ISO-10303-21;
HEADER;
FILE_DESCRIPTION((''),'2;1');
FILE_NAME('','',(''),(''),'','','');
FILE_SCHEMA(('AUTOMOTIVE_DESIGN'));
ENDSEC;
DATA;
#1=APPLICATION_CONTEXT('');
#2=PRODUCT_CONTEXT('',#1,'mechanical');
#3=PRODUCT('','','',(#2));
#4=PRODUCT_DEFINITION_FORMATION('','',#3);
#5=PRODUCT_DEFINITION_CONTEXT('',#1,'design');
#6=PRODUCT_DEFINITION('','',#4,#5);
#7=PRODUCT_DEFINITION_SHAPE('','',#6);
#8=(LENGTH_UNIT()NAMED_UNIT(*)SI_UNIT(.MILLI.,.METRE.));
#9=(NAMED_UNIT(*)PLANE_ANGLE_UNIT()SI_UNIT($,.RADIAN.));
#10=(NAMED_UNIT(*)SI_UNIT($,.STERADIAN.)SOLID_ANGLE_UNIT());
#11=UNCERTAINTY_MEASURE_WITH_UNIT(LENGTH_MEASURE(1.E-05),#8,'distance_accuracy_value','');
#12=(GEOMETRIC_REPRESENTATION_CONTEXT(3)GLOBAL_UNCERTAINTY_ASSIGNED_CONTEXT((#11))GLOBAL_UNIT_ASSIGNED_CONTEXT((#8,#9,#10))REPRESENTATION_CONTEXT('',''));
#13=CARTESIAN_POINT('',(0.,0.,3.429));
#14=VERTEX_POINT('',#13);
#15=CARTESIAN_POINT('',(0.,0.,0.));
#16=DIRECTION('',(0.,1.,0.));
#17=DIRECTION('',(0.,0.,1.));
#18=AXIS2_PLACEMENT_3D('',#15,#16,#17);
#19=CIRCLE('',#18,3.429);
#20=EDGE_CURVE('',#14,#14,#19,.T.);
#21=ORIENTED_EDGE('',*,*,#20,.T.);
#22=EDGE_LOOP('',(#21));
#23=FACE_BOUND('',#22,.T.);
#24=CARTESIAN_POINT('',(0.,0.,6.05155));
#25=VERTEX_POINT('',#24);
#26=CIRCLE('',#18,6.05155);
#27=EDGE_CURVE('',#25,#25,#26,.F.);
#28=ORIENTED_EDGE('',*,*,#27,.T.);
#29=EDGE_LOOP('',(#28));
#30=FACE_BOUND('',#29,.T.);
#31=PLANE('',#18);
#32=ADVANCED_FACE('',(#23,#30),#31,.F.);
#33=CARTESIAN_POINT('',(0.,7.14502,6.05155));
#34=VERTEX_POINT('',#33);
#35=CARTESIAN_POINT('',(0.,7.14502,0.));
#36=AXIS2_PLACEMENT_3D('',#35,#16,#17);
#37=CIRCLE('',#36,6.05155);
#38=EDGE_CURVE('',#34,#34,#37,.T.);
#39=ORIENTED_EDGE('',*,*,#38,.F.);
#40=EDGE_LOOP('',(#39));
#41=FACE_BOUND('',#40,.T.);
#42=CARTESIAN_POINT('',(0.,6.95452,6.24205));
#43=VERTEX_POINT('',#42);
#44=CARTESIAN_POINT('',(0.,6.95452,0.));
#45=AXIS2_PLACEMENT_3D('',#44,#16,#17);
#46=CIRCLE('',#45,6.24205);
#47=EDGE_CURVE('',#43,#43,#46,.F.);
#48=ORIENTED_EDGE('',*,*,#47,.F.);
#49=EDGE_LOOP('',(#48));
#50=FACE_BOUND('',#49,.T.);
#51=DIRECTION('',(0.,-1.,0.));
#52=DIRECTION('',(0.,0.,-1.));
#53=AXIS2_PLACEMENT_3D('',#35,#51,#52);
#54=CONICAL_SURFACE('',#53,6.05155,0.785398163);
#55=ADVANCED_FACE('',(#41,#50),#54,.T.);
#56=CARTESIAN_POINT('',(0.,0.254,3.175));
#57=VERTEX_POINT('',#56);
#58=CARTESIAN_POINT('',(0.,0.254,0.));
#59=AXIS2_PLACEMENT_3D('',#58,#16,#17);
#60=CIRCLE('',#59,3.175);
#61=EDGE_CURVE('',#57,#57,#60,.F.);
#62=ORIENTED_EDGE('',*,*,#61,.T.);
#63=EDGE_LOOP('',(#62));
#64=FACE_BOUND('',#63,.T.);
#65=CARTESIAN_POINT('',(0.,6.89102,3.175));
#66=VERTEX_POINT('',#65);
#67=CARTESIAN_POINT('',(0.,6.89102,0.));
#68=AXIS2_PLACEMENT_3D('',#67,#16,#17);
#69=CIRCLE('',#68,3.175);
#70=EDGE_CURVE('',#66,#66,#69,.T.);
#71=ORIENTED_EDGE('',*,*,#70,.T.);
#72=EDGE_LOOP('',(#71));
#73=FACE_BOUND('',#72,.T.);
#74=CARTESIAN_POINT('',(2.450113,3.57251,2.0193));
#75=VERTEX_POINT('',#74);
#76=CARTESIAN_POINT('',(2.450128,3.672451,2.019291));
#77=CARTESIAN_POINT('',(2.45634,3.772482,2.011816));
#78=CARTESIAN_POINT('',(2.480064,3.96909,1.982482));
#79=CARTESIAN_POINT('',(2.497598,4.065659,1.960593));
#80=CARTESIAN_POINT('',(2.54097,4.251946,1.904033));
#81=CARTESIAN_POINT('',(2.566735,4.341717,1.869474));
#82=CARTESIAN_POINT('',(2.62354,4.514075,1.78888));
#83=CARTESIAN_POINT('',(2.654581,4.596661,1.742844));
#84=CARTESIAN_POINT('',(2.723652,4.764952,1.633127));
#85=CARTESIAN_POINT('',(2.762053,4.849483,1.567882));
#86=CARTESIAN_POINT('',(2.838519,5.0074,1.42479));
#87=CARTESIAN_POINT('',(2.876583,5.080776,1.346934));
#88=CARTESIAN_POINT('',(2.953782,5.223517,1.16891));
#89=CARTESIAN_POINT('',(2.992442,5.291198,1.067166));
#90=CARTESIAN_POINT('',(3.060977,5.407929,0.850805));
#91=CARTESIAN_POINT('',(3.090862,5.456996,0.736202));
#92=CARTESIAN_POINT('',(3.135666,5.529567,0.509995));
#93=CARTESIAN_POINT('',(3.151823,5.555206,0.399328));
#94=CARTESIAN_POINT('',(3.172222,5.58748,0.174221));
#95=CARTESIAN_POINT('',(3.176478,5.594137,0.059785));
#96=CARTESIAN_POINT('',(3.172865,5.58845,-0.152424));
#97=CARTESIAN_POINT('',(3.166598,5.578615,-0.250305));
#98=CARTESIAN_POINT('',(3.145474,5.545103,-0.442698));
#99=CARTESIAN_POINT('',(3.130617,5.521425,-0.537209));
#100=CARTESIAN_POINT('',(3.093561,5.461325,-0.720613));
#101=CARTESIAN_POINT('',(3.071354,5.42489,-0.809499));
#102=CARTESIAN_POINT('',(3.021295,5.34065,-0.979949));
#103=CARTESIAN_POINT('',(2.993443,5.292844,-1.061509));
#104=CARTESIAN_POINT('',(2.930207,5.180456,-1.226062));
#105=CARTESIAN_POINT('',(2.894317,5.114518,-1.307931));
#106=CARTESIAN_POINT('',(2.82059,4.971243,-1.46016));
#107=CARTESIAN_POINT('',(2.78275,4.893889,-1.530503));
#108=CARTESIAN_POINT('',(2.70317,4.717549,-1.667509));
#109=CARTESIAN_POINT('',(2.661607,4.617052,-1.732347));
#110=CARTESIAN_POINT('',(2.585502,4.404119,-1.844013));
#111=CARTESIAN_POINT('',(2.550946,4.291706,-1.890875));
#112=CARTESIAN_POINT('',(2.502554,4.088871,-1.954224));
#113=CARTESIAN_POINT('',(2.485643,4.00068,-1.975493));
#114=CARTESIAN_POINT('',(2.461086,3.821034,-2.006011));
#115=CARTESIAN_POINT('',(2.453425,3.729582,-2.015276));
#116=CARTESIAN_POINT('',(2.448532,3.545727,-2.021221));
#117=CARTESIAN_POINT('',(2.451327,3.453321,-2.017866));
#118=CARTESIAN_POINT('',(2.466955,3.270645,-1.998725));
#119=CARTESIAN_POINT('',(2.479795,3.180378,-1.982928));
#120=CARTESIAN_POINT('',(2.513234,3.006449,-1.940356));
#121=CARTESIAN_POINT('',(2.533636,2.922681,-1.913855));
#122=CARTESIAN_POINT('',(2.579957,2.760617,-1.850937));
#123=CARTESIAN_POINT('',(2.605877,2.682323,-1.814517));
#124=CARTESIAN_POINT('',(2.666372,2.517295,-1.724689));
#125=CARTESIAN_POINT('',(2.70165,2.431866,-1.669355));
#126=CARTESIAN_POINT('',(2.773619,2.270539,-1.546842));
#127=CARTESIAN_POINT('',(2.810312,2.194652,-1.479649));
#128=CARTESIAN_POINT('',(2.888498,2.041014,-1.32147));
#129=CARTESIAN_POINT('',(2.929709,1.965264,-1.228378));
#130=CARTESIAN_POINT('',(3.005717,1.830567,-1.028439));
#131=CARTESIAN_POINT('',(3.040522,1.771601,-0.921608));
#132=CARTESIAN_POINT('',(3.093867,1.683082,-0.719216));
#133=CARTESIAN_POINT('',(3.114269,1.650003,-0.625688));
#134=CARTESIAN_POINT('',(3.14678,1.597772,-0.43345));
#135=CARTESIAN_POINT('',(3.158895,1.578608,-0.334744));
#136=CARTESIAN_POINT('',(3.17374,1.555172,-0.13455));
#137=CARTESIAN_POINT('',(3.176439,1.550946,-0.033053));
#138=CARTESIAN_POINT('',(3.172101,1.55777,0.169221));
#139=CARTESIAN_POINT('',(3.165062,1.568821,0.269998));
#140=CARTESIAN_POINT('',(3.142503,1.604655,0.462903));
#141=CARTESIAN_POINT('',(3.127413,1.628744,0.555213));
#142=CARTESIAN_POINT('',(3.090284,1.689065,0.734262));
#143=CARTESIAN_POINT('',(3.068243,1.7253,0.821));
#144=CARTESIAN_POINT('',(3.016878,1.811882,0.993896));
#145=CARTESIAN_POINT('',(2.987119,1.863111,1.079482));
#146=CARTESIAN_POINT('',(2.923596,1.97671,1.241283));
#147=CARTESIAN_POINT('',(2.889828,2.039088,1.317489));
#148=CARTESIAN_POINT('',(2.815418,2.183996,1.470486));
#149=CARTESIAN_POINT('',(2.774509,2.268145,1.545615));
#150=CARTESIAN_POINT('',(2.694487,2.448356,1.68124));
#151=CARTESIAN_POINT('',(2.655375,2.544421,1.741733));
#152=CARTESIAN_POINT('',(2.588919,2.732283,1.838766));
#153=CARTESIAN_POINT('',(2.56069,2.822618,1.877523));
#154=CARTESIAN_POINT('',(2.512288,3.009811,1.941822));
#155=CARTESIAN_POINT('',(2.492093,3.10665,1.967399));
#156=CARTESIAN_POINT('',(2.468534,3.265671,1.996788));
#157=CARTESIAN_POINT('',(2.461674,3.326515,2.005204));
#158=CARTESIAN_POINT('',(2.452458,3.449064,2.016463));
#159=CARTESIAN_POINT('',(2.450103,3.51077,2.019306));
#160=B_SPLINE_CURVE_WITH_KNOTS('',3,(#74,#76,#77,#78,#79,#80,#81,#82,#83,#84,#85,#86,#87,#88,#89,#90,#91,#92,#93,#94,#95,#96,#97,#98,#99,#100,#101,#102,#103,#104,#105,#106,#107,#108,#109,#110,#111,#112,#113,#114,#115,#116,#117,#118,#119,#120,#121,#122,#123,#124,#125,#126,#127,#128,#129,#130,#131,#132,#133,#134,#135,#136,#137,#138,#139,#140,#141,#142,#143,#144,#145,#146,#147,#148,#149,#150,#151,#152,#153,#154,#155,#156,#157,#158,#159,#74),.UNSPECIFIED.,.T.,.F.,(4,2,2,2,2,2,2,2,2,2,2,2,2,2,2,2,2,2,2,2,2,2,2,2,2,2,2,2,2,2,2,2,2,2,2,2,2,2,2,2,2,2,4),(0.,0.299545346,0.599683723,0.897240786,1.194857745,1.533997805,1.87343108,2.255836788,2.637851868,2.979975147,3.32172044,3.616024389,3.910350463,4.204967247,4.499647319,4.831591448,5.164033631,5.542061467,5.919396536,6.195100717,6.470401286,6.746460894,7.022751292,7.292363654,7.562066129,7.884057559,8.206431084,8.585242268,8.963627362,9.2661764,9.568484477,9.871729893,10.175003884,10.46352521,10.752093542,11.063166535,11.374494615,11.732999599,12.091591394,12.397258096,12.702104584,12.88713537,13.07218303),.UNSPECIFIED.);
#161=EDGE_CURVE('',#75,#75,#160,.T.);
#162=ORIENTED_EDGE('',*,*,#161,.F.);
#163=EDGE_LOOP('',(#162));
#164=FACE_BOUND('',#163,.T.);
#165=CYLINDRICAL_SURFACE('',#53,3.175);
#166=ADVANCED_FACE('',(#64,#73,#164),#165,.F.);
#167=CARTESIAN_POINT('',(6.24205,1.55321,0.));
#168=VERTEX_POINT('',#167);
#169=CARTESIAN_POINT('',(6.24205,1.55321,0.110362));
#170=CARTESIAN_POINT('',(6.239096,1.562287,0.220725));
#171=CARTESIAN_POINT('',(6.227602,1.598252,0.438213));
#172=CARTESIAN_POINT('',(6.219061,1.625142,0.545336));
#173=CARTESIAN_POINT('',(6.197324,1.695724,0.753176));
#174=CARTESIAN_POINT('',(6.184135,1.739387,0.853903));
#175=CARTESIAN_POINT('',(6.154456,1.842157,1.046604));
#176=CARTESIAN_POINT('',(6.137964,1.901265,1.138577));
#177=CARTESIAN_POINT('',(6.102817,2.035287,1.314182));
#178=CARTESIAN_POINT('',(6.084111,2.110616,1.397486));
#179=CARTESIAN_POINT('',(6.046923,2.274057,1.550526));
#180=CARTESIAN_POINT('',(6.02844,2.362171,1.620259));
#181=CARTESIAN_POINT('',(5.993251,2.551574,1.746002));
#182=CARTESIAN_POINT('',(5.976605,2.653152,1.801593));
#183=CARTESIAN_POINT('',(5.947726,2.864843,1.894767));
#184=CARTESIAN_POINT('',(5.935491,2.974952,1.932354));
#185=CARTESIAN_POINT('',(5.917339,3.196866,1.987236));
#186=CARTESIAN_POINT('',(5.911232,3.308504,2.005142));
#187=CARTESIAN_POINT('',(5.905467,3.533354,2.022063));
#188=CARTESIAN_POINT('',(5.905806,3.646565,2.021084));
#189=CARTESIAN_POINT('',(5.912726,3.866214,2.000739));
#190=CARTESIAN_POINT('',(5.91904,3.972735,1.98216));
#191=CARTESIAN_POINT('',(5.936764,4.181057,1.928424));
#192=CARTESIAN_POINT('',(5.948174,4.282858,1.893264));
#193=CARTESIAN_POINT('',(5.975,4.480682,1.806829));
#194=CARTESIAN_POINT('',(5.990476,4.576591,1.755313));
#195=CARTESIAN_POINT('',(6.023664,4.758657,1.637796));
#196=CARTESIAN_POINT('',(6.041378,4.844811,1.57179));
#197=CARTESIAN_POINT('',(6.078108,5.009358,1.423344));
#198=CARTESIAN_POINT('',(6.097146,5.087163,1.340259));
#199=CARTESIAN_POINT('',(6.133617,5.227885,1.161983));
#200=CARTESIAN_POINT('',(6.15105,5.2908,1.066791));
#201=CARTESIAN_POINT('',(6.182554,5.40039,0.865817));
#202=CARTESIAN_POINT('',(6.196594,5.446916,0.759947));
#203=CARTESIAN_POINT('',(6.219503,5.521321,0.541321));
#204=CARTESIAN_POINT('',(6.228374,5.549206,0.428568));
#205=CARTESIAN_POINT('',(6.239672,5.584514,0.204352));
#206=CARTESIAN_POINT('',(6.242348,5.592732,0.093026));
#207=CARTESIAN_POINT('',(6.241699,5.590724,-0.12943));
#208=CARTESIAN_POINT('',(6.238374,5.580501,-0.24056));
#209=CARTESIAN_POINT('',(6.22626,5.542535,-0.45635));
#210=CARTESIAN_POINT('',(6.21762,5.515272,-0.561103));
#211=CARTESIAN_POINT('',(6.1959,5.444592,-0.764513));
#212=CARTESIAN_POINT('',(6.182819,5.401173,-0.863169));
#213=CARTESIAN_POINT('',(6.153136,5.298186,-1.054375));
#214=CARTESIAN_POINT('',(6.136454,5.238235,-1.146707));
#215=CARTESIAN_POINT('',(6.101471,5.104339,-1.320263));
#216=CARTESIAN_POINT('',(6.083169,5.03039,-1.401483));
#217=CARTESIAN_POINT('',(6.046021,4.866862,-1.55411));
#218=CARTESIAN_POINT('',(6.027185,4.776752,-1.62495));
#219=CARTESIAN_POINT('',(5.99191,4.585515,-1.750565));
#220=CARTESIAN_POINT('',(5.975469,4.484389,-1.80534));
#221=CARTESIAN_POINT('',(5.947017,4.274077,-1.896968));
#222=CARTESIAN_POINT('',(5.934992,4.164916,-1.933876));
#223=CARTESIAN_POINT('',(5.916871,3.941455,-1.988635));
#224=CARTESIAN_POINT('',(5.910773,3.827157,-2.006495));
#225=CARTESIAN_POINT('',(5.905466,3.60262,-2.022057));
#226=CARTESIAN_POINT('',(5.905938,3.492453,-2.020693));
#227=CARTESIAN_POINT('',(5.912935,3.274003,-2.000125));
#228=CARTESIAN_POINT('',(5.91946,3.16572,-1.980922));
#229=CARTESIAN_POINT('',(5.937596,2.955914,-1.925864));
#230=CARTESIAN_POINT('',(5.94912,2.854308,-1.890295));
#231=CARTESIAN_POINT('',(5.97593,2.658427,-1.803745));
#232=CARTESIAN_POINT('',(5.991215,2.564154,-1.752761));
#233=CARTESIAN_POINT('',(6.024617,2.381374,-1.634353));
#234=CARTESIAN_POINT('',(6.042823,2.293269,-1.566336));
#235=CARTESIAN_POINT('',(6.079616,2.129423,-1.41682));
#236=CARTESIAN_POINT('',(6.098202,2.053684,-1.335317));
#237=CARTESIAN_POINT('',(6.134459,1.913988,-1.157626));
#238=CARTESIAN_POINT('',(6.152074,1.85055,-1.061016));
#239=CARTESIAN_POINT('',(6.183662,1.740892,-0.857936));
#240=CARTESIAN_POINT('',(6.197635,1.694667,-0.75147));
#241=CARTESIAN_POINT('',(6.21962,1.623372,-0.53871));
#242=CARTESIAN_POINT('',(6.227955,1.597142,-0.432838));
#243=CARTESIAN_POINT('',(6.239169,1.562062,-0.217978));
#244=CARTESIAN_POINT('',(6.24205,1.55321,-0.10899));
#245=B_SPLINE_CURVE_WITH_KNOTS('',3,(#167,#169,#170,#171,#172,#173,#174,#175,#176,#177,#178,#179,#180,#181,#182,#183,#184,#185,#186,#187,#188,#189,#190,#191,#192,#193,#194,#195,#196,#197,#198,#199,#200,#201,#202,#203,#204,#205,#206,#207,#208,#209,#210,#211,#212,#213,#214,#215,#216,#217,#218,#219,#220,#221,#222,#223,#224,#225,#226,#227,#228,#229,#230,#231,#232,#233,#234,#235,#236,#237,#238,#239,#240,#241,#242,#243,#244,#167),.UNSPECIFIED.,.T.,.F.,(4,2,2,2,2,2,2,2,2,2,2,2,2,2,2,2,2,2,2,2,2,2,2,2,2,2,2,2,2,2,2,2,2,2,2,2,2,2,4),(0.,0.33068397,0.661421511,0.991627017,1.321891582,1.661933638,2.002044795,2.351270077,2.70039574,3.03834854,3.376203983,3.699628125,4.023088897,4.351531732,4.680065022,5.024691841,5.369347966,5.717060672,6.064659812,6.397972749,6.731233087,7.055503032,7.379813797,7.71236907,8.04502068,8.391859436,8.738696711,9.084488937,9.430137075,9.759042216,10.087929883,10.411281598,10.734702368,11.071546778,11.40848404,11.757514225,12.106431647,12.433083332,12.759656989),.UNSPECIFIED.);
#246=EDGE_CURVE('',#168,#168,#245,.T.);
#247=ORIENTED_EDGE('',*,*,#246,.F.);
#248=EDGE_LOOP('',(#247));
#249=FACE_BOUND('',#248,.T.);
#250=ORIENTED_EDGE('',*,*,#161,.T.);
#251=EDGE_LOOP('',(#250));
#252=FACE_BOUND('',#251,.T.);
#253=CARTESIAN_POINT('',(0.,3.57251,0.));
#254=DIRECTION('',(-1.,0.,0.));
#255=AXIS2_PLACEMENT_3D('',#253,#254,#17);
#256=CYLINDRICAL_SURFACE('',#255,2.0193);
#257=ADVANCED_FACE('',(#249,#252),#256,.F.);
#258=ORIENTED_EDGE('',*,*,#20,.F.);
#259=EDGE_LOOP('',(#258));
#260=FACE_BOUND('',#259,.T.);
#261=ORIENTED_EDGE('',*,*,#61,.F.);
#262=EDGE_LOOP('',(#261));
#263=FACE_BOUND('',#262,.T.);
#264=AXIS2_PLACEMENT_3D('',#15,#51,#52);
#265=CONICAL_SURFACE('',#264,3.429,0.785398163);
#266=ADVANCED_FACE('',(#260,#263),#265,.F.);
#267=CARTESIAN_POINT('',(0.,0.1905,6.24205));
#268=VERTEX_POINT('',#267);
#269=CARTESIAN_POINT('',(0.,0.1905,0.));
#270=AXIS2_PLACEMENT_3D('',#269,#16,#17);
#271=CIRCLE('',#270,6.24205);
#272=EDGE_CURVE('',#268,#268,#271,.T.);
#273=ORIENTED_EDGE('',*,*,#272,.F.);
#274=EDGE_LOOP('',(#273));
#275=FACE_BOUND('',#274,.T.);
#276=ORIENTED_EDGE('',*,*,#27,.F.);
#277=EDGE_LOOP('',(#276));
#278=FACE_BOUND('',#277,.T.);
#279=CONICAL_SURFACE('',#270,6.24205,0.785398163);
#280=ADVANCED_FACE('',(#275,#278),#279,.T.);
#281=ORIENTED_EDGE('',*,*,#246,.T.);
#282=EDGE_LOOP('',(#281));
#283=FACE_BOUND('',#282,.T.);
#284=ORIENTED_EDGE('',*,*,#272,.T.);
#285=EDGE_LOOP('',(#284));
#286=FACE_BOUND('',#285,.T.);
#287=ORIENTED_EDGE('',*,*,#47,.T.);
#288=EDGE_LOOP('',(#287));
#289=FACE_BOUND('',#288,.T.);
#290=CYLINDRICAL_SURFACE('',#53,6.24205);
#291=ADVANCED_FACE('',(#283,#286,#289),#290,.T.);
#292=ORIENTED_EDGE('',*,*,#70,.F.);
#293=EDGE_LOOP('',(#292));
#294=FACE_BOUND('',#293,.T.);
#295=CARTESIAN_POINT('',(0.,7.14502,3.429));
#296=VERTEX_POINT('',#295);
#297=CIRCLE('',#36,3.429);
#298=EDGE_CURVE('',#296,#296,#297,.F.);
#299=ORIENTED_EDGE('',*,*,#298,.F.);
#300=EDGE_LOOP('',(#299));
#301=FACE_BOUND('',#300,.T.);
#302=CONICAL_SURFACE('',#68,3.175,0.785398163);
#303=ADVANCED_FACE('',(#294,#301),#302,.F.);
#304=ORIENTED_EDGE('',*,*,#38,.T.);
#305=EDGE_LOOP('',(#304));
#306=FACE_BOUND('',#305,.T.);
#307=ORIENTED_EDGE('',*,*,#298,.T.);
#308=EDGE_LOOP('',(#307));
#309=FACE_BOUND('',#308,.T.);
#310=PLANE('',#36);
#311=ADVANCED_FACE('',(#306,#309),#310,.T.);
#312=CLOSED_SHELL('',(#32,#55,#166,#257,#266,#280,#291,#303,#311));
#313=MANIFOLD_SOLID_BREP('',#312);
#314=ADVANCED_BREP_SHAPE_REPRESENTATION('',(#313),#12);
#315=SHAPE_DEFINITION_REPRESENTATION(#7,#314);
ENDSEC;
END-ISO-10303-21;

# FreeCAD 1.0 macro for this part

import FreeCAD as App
import Part
import Sketcher

V = App.Vector
Q = App.Units.Quantity


def edges_at(feature, points):
    """Names of the edges that pass closest to the given points."""
    edges = feature.Shape.Edges
    near = lambda p: min(range(len(edges)), key=lambda i: edges[i].distToShape(Part.Vertex(*p))[0])
    return sorted({f"Edge{near(p) + 1}" for p in points})

doc = App.newDocument("Part")
params = doc.addObject("Spreadsheet::Sheet", "Params")
for row, (alias, value) in enumerate([
    ("sketch1_diameter", "0.25 in"),
    ("pad1_length", "0.2813 in"),
    ("chamfer_size", "0.0075 in"),
    ("chamfer2_size", "0.01 in"),
    ("groove_angle", "360 deg"),
], start=1):
    params.set(f"A{row}", alias)
    params.set(f"B{row}", "=" + value)
    params.setAlias(f"B{row}", alias)

body = doc.addObject("PartDesign::Body", "Body")

# Sketch on XZ plane
sketch1 = body.newObject("Sketcher::SketchObject", "Sketch")
sketch1.AttachmentSupport = (doc.getObject("XZ_Plane"), [""])
sketch1.MapMode = "FlatFace"
sketch1.addGeometry(Part.Circle(V(0, 0, 0), V(0, 0, 1), 6.2), False)
sketch1.addGeometry(Part.Circle(V(0, 0, 0), V(0, 0, 1), 3.2), False)
sketch1.addConstraint(Sketcher.Constraint("Coincident", 0, 3, -1, 1))
sketch1.addConstraint(Sketcher.Constraint("Coincident", 1, 3, -1, 1))
sketch1.addConstraint(Sketcher.Constraint("Diameter", 1, Q("0.25 in")))
sketch1.addConstraint(Sketcher.Constraint("Diameter", 0, Q("0.4915 in")))
sketch1.setExpression("Constraints[2]", "Params.sketch1_diameter")
pad1 = body.newObject("PartDesign::Pad", "Pad")
pad1.Profile = sketch1
pad1.setExpression("Length", "Params.pad1_length")
pad1.Reversed = True
doc.recompute()

chamfer = body.newObject("PartDesign::Chamfer", "Chamfer")
chamfer.Base = (pad1, edges_at(pad1, [(0, 0, 6.242), (0, 7.145, 6.242)]))
chamfer.setExpression("Size", "Params.chamfer_size")
doc.recompute()

chamfer2 = body.newObject("PartDesign::Chamfer", "Chamfer001")
chamfer2.Base = (chamfer, edges_at(chamfer, [(0, 0, 3.175), (0, 7.145, 3.175)]))
chamfer2.setExpression("Size", "Params.chamfer2_size")

# Sketch on XZ plane
sketch2 = body.newObject("Sketcher::SketchObject", "Sketch001")
sketch2.AttachmentSupport = (doc.getObject("XZ_Plane"), [""])
sketch2.MapMode = "FlatFace"
sketch2.AttachmentOffset = App.Placement(V(0, 0, -3.57251), App.Rotation())
sketch2.addGeometry(Part.LineSegment(V(6.2, 0, 0), V(0, 0, 0)), False)
sketch2.addGeometry(Part.LineSegment(V(0, 0, 0), V(0, 2, 0)), False)
sketch2.addGeometry(Part.LineSegment(V(0, 2, 0), V(6.2, 2, 0)), False)
sketch2.addGeometry(Part.LineSegment(V(6.2, 2, 0), V(6.2, 0, 0)), False)
sketch2.addConstraint(Sketcher.Constraint("Coincident", 0, 2, 1, 1))
sketch2.addConstraint(Sketcher.Constraint("Coincident", 1, 2, 2, 1))
sketch2.addConstraint(Sketcher.Constraint("Coincident", 2, 2, 3, 1))
sketch2.addConstraint(Sketcher.Constraint("Coincident", 3, 2, 0, 1))
sketch2.addConstraint(Sketcher.Constraint("Horizontal", 0))
sketch2.addConstraint(Sketcher.Constraint("Vertical", 1))
sketch2.addConstraint(Sketcher.Constraint("Horizontal", 2))
sketch2.addConstraint(Sketcher.Constraint("Vertical", 3))
sketch2.addConstraint(Sketcher.Constraint("Coincident", 0, 2, -1, 1))
sketch2.addConstraint(Sketcher.Constraint("DistanceY", 1, 1, 1, 2, Q("0.0795 in")))
sketch2.addConstraint(Sketcher.Constraint("DistanceX", 0, 2, 0, 1, Q("6.24205 mm")))
groove = body.newObject("PartDesign::Groove", "Groove")
groove.Profile = sketch2
groove.ReferenceAxis = (sketch2, ["H_Axis"])
groove.setExpression("Angle", "Params.groove_angle")

doc.recompute()
